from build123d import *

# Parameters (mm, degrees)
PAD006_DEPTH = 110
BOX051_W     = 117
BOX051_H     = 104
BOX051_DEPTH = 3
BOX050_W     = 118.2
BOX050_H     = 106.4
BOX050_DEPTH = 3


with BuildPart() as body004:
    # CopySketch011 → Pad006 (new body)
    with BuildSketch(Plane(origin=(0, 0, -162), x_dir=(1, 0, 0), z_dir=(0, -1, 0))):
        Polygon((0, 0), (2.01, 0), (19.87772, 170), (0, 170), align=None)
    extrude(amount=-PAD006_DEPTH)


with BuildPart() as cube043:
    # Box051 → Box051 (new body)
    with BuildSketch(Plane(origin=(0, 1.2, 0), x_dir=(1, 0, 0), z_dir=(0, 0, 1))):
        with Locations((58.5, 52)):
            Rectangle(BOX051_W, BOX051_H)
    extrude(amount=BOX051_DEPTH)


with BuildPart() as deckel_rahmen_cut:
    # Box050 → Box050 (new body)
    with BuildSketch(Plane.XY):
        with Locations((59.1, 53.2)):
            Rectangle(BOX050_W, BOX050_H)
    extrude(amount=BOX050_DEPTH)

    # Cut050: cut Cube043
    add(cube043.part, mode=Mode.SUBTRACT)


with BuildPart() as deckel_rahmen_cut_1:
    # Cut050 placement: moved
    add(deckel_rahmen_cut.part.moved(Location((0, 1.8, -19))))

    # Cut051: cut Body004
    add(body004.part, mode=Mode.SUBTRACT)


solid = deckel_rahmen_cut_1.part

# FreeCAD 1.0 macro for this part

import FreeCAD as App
import Part
import Sketcher
Q = App.Units.Quantity


def add_polygon(sketch, points):
    """Adds a closed chain of lines whose ends are joined by coincident constraints."""
    first, n = sketch.GeometryCount, len(points)
    for a, b in zip(points, points[1:] + points[:1]):
        sketch.addGeometry(Part.LineSegment(App.Vector(*a, 0), App.Vector(*b, 0)), False)
    for i in range(n):
        sketch.addConstraint(Sketcher.Constraint("Coincident", first + i, 2, first + (i + 1) % n, 1))

doc = App.newDocument("Part")
body = doc.addObject("PartDesign::Body", "Body")

# Sketch on XZ plane
sketch1 = body.newObject("Sketcher::SketchObject", "Sketch")
sketch1.AttachmentSupport = (doc.getObject("XZ_Plane"), [""])
sketch1.MapMode = "FlatFace"
add_polygon(sketch1, [(0, -162), (2, -162), (19.9, 8), (0, 8)])  # lines 0-3
sketch1.addConstraint([
    Sketcher.Constraint("Horizontal", 0),
    Sketcher.Constraint("Horizontal", 2),
    Sketcher.Constraint("Vertical", 3),
    Sketcher.Constraint("PointOnObject", 2, 2, -2),
    Sketcher.Constraint("DistanceY", 3, 2, 3, 1, 170.0),
    Sketcher.Constraint("Angle", 1, Q("84 deg")),
    Sketcher.Constraint("DistanceY", 0, 2, -1, 1, 162.0),
    Sketcher.Constraint("DistanceX", 0, 1, 0, 2, 2.01),
])
pad1 = body.newObject("PartDesign::Pad", "Pad")
pad1.Profile = sketch1
pad1.Length = 110
pad1.Reversed = True
body2 = doc.addObject("PartDesign::Body", "Body001")

# Sketch on XY plane
sketch2 = body2.newObject("Sketcher::SketchObject", "Sketch001")
sketch2.AttachmentSupport = (doc.getObject("XY_Plane001"), [""])
sketch2.MapMode = "FlatFace"
add_polygon(sketch2, [(0, 105), (0, 1), (117, 1), (117, 105)])  # lines 0-3
sketch2.addConstraint([
    Sketcher.Constraint("Vertical", 0),
    Sketcher.Constraint("Horizontal", 1),
    Sketcher.Constraint("Vertical", 2),
    Sketcher.Constraint("Horizontal", 3),
    Sketcher.Constraint("PointOnObject", 0, 2, -2),
    Sketcher.Constraint("DistanceX", 1, 1, 1, 2, 117.0),
    Sketcher.Constraint("DistanceY", 0, 2, 0, 1, 104.0),
    Sketcher.Constraint("DistanceY", -1, 1, 0, 2, 1.2),
])
pad2 = body2.newObject("PartDesign::Pad", "Pad001")
pad2.Profile = sketch2
pad2.Length = 3
body3 = doc.addObject("PartDesign::Body", "Body002")

# Sketch on XY plane
sketch3 = body3.newObject("Sketcher::SketchObject", "Sketch002")
sketch3.AttachmentSupport = (doc.getObject("XY_Plane002"), [""])
sketch3.MapMode = "FlatFace"
add_polygon(sketch3, [(0, 106), (0, 0), (118, 0), (118, 106)])  # lines 0-3
sketch3.addConstraint([
    Sketcher.Constraint("Vertical", 0),
    Sketcher.Constraint("Horizontal", 1),
    Sketcher.Constraint("Vertical", 2),
    Sketcher.Constraint("Horizontal", 3),
    Sketcher.Constraint("Coincident", 0, 2, -1, 1),
    Sketcher.Constraint("DistanceX", 1, 1, 1, 2, 118.2),
    Sketcher.Constraint("DistanceY", 0, 2, 0, 1, 106.4),
])
pad3 = body3.newObject("PartDesign::Pad", "Pad002")
pad3.Profile = sketch3
pad3.Length = 3
doc.recompute()

boolean = body3.newObject("PartDesign::Boolean", "Boolean")
boolean.Type = "Cut"
boolean.addObjects([body2])
body4 = doc.addObject("PartDesign::Body", "Body003")
doc.recompute()

body3.Placement = App.Placement(App.Vector(0, 1.8, -19), App.Rotation(App.Vector(0, 0, 1), 0))
boolean2 = body4.newObject("PartDesign::Boolean", "Boolean001")
boolean2.Type = "Fuse"
boolean2.addObjects([body3])
doc.recompute()

boolean3 = body4.newObject("PartDesign::Boolean", "Boolean002")
boolean3.Type = "Cut"
boolean3.addObjects([body])

doc.recompute()
